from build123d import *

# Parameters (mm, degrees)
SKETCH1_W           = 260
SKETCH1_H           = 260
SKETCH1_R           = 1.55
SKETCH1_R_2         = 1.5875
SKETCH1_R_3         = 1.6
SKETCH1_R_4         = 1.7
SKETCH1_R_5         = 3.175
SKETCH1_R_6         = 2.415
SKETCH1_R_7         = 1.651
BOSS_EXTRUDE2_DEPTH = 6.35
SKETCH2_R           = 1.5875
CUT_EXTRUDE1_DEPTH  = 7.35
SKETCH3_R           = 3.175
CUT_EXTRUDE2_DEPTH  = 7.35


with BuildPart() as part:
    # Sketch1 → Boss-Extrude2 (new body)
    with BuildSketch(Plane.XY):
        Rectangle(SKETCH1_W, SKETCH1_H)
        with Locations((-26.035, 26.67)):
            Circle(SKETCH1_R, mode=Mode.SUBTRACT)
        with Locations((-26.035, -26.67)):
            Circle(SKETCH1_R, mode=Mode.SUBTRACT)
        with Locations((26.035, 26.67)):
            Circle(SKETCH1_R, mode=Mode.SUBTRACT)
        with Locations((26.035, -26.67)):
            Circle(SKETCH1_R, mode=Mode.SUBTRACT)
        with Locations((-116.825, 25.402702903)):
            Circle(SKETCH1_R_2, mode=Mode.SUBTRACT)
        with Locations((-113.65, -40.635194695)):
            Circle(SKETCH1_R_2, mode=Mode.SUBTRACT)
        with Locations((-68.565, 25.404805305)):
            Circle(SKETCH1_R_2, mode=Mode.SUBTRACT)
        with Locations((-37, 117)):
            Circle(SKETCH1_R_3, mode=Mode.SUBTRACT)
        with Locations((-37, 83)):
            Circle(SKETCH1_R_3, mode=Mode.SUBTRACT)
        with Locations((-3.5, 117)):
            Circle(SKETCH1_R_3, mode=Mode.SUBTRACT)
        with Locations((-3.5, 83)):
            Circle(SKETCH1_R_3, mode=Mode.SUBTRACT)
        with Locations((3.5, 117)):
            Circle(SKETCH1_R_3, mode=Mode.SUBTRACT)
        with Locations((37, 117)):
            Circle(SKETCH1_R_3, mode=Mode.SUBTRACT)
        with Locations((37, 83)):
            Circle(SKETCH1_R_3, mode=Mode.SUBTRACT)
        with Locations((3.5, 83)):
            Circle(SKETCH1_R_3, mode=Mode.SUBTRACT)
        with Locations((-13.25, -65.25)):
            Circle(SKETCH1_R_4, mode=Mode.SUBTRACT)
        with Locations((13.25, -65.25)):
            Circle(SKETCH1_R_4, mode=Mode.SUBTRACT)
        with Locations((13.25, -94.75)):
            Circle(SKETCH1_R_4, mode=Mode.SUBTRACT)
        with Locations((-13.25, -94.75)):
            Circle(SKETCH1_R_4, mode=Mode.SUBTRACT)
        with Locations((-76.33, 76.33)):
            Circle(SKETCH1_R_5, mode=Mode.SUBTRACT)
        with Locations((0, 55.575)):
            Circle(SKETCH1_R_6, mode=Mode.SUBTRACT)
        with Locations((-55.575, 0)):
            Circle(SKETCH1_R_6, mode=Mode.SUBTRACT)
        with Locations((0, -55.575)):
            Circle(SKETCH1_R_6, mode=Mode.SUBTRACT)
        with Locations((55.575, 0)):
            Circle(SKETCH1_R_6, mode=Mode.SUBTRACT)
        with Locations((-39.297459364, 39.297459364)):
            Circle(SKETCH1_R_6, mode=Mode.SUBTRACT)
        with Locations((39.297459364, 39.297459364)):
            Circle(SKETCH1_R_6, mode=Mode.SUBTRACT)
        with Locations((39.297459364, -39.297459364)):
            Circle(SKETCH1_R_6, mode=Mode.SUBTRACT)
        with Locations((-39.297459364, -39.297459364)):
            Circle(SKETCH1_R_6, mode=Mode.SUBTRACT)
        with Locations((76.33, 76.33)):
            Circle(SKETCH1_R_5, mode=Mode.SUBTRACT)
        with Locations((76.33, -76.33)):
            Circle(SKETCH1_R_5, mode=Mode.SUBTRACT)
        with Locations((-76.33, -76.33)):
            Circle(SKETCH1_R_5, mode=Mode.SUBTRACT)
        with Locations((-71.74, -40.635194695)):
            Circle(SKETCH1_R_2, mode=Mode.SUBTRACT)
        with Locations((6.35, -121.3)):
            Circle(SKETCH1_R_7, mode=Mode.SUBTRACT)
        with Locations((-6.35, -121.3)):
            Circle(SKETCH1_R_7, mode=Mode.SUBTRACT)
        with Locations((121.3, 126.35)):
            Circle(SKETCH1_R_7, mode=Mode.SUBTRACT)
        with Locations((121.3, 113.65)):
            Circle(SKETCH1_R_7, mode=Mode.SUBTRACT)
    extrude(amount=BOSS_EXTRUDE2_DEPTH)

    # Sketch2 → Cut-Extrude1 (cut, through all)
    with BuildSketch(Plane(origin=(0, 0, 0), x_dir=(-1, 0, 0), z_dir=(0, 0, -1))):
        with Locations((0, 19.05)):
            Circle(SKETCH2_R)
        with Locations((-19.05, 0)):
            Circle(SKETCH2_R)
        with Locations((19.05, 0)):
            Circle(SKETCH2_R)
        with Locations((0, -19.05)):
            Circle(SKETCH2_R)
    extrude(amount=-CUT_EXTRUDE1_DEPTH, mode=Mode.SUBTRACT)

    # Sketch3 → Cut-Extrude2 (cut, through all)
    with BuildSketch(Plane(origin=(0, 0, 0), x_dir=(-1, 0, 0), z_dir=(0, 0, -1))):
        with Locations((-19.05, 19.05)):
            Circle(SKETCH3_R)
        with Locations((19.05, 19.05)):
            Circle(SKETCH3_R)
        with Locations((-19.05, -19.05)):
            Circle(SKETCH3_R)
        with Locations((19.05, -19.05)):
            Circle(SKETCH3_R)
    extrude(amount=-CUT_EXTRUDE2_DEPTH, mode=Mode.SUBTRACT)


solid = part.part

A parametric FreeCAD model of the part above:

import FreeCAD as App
import Part
import Sketcher

V = App.Vector
Q = App.Units.Quantity

doc = App.newDocument("Part")
body = doc.addObject("PartDesign::Body", "Body")

# Sketch on XY plane
sketch1 = body.newObject("Sketcher::SketchObject", "Sketch")
sketch1.AttachmentSupport = (doc.getObject("XY_Plane"), [""])
sketch1.MapMode = "FlatFace"
sketch1.addGeometry([
    Part.LineSegment(V(-130, 130, 0), V(-130, -130, 0)),  # 0
    Part.LineSegment(V(-130, -130, 0), V(130, -130, 0)),  # 1
    Part.LineSegment(V(130, -130, 0), V(130, 130, 0)),  # 2
    Part.LineSegment(V(130, 130, 0), V(-130, 130, 0)),  # 3
    Part.Circle(V(-76.33, -76.33, 0), V(0, 0, 1), 3.175),  # 4
    Part.Circle(V(-6.35, -121.3, 0), V(0, 0, 1), 1.651),  # 5
    Part.Circle(V(-13.25, -94.75, 0), V(0, 0, 1), 1.7),  # 6
    Part.Circle(V(-13.25, -65.25, 0), V(0, 0, 1), 1.7),  # 7
    Part.Circle(V(-113.65, -40.635195, 0), V(0, 0, 1), 1.5875),  # 8
    Part.Circle(V(-71.74, -40.635195, 0), V(0, 0, 1), 1.5875),  # 9
    Part.Circle(V(-39.297459, -39.297459, 0), V(0, 0, 1), 2.415),  # 10
    Part.Circle(V(0, -55.575, 0), V(0, 0, 1), 2.415),  # 11
    Part.Circle(V(-55.575, 0, 0), V(0, 0, 1), 2.415),  # 12
    Part.Circle(V(-26.035, -26.67, 0), V(0, 0, 1), 1.55),  # 13
    Part.Circle(V(6.35, -121.3, 0), V(0, 0, 1), 1.651),  # 14
    Part.Circle(V(13.25, -94.75, 0), V(0, 0, 1), 1.7),  # 15
    Part.Circle(V(13.25, -65.25, 0), V(0, 0, 1), 1.7),  # 16
    Part.Circle(V(76.33, -76.33, 0), V(0, 0, 1), 3.175),  # 17
    Part.Circle(V(39.297459, -39.297459, 0), V(0, 0, 1), 2.415),  # 18
    Part.Circle(V(26.035, -26.67, 0), V(0, 0, 1), 1.55),  # 19
    Part.Circle(V(55.575, 0, 0), V(0, 0, 1), 2.415),  # 20
    Part.Circle(V(-116.825, 25.402703, 0), V(0, 0, 1), 1.5875),  # 21
    Part.Circle(V(-68.565, 25.404805, 0), V(0, 0, 1), 1.5875),  # 22
    Part.Circle(V(-26.035, 26.67, 0), V(0, 0, 1), 1.55),  # 23
    Part.Circle(V(-39.297459, 39.297459, 0), V(0, 0, 1), 2.415),  # 24
    Part.Circle(V(0, 55.575, 0), V(0, 0, 1), 2.415),  # 25
    Part.Circle(V(-76.33, 76.33, 0), V(0, 0, 1), 3.175),  # 26
    Part.Circle(V(-37, 83, 0), V(0, 0, 1), 1.6),  # 27
    Part.Circle(V(-3.5, 83, 0), V(0, 0, 1), 1.6),  # 28
    Part.Circle(V(-37, 117, 0), V(0, 0, 1), 1.6),  # 29
    Part.Circle(V(-3.5, 117, 0), V(0, 0, 1), 1.6),  # 30
    Part.Circle(V(26.035, 26.67, 0), V(0, 0, 1), 1.55),  # 31
    Part.Circle(V(39.297459, 39.297459, 0), V(0, 0, 1), 2.415),  # 32
    Part.Circle(V(3.5, 83, 0), V(0, 0, 1), 1.6),  # 33
    Part.Circle(V(37, 83, 0), V(0, 0, 1), 1.6),  # 34
    Part.Circle(V(3.5, 117, 0), V(0, 0, 1), 1.6),  # 35
    Part.Circle(V(37, 117, 0), V(0, 0, 1), 1.6),  # 36
    Part.Circle(V(76.33, 76.33, 0), V(0, 0, 1), 3.175),  # 37
    Part.Circle(V(121.3, 113.65, 0), V(0, 0, 1), 1.651),  # 38
    Part.Circle(V(121.3, 126.35, 0), V(0, 0, 1), 1.651),  # 39
], False)
sketch1.addConstraint([
    Sketcher.Constraint("Coincident", 0, 2, 1, 1),
    Sketcher.Constraint("Coincident", 1, 2, 2, 1),
    Sketcher.Constraint("Coincident", 2, 2, 3, 1),
    Sketcher.Constraint("Coincident", 3, 2, 0, 1),
    Sketcher.Constraint("Vertical", 0),
    Sketcher.Constraint("Horizontal", 1),
    Sketcher.Constraint("Vertical", 2),
    Sketcher.Constraint("Horizontal", 3),
    Sketcher.Constraint("Equal", 6, 7),
    Sketcher.Constraint("Equal", 8, 9),
    Sketcher.Constraint("Equal", 10, 11),
    Sketcher.Constraint("Equal", 11, 12),
    Sketcher.Constraint("Equal", 5, 14),
    Sketcher.Constraint("Equal", 7, 15),
    Sketcher.Constraint("Equal", 15, 16),
    Sketcher.Constraint("Equal", 4, 17),
    Sketcher.Constraint("Equal", 12, 18),
    Sketcher.Constraint("Equal", 13, 19),
    Sketcher.Constraint("Equal", 18, 20),
    Sketcher.Constraint("Equal", 9, 21),
    Sketcher.Constraint("Equal", 21, 22),
    Sketcher.Constraint("Equal", 19, 23),
    Sketcher.Constraint("Equal", 20, 24),
    Sketcher.Constraint("Equal", 24, 25),
    Sketcher.Constraint("Equal", 17, 26),
    Sketcher.Constraint("Equal", 27, 28),
    Sketcher.Constraint("Equal", 28, 29),
    Sketcher.Constraint("Equal", 29, 30),
    Sketcher.Constraint("Equal", 23, 31),
    Sketcher.Constraint("Equal", 25, 32),
    Sketcher.Constraint("Equal", 30, 33),
    Sketcher.Constraint("Equal", 33, 34),
    Sketcher.Constraint("Equal", 34, 35),
    Sketcher.Constraint("Equal", 35, 36),
    Sketcher.Constraint("Equal", 26, 37),
    Sketcher.Constraint("Equal", 14, 38),
    Sketcher.Constraint("Equal", 38, 39),
    Sketcher.Constraint("Symmetric", 12, 3, 20, 3, -1, 1),
    Sketcher.Constraint("Symmetric", 19, 3, 23, 3, -1, 1),
    Sketcher.Constraint("Symmetric", 18, 3, 24, 3, -1, 1),
    Sketcher.Constraint("Symmetric", 11, 3, 25, 3, -1, 1),
    Sketcher.Constraint("Symmetric", 17, 3, 26, 3, -1, 1),
    Sketcher.Constraint("Symmetric", 13, 3, 31, 3, -1, 1),
    Sketcher.Constraint("Symmetric", 10, 3, 32, 3, -1, 1),
    Sketcher.Constraint("Symmetric", 4, 3, 37, 3, -1, 1),
    Sketcher.Constraint("Symmetric", 0, 2, 2, 2, -1, 1),
    Sketcher.Constraint("Symmetric", 5, 3, 14, 3, -2),
    Sketcher.Constraint("Symmetric", 6, 3, 15, 3, -2),
    Sketcher.Constraint("Symmetric", 7, 3, 16, 3, -2),
    Sketcher.Constraint("Symmetric", 4, 3, 17, 3, -2),
    Sketcher.Constraint("Symmetric", 10, 3, 18, 3, -2),
    Sketcher.Constraint("Symmetric", 13, 3, 19, 3, -2),
    Sketcher.Constraint("Symmetric", 28, 3, 33, 3, -2),
    Sketcher.Constraint("Symmetric", 27, 3, 34, 3, -2),
    Sketcher.Constraint("Symmetric", 30, 3, 35, 3, -2),
    Sketcher.Constraint("Symmetric", 29, 3, 36, 3, -2),
    Sketcher.Constraint("PointOnObject", 11, 3, -2),
    Sketcher.Constraint("PointOnObject", 12, 3, -1),
    Sketcher.Constraint("Horizontal", 8, 3, 9, 3),
    Sketcher.Constraint("Horizontal", 27, 3, 28, 3),
    Sketcher.Constraint("Horizontal", 29, 3, 30, 3),
    Sketcher.Constraint("Vertical", 6, 3, 7, 3),
    Sketcher.Constraint("Vertical", 27, 3, 29, 3),
    Sketcher.Constraint("Vertical", 28, 3, 30, 3),
    Sketcher.Constraint("Vertical", 38, 3, 39, 3),
    Sketcher.Constraint("Equal", 3, 0),
    Sketcher.Constraint("Diameter", 6, Q("3.4 mm")),
    Sketcher.Constraint("Diameter", 13, Q("3.1 mm")),
    Sketcher.Constraint("Diameter", 27, Q("3.2 mm")),
    Sketcher.Constraint("Diameter", 4, Q("6.35 mm")),
    Sketcher.Constraint("Diameter", 10, Q("4.83 mm")),
    Sketcher.Constraint("DistanceX", 1, 1, 1, 2, Q("260 mm")),
    Sketcher.Constraint("Diameter", 5, Q("3.302 mm")),
    Sketcher.Constraint("Diameter", 8, Q("3.175 mm")),
    Sketcher.Constraint("DistanceX", 27, 3, -1, 1, Q("37 mm")),
    Sketcher.Constraint("DistanceY", -1, 1, 27, 3, Q("83 mm")),
    Sketcher.Constraint("DistanceY", -1, 1, 29, 3, Q("117 mm")),
    Sketcher.Constraint("DistanceX", 28, 3, 33, 3, Q("7 mm")),
    Sketcher.Constraint("DistanceY", 5, 3, -1, 1, Q("121.3 mm")),
    Sketcher.Constraint("DistanceX", -1, 1, 38, 3, Q("121.3 mm")),
    Sketcher.Constraint("DistanceX", 6, 3, 5, 3, Q("6.9 mm")),
    Sketcher.Constraint("DistanceY", 6, 3, 7, 3, Q("29.5 mm")),
    Sketcher.Constraint("DistanceX", 8, 3, 7, 3, Q("100.4 mm")),
    Sketcher.Constraint("DistanceX", 5, 3, 14, 3, Q("12.7 mm")),
    Sketcher.Constraint("DistanceY", 38, 3, 39, 3, Q("12.7 mm")),
    Sketcher.Constraint("DistanceX", 4, 3, -1, 1, Q("76.33 mm")),
    Sketcher.Constraint("DistanceY", 4, 3, -1, 1, Q("76.33 mm")),
    Sketcher.Constraint("DistanceY", 6, 3, -1, 1, Q("94.75 mm")),
    Sketcher.Constraint("DistanceX", 9, 3, -1, 1, Q("71.74 mm")),
    Sketcher.Constraint("DistanceY", 13, 3, -1, 1, Q("26.67 mm")),
    Sketcher.Constraint("DistanceY", -1, 1, 38, 3, Q("113.65 mm")),
    Sketcher.Constraint("DistanceX", 12, 3, 13, 3, Q("29.54 mm")),
    Sketcher.Constraint("DistanceX", 13, 3, 19, 3, Q("52.07 mm")),
    Sketcher.Constraint("DistanceX", 21, 3, 12, 3, Q("61.25 mm")),
    Sketcher.Constraint("DistanceX", 22, 3, 12, 3, Q("12.99 mm")),
    Sketcher.Constraint("DistanceY", 9, 3, 22, 3, Q("66.04 mm")),
    Sketcher.Constraint("DistanceY", 11, 3, -1, 1, Q("55.575 mm")),
    Sketcher.Constraint("DistanceX", 10, 3, -1, 1, Q("39.297459 mm")),
    Sketcher.Constraint("DistanceY", 10, 3, -1, 1, Q("39.297459 mm")),
    Sketcher.Constraint("DistanceY", 8, 3, -1, 1, Q("40.635195 mm")),
    Sketcher.Constraint("DistanceY", -1, 1, 21, 3, Q("25.402703 mm")),
])
pad1 = body.newObject("PartDesign::Pad", "Pad")
pad1.Profile = sketch1
pad1.Length = 6.35

# Sketch on XY plane
sketch2 = body.newObject("Sketcher::SketchObject", "Sketch001")
sketch2.AttachmentSupport = (doc.getObject("XY_Plane"), [""])
sketch2.MapMode = "FlatFace"
sketch2.addGeometry([
    Part.Circle(V(0, 19.05, 0), V(0, 0, 1), 1.5875),
    Part.Circle(V(19.05, 0, 0), V(0, 0, 1), 1.5875),
    Part.Circle(V(-19.05, 0, 0), V(0, 0, 1), 1.5875),
    Part.Circle(V(0, -19.05, 0), V(0, 0, 1), 1.5875),
], False)
sketch2.addConstraint([
    Sketcher.Constraint("Equal", 0, 1),
    Sketcher.Constraint("Equal", 1, 2),
    Sketcher.Constraint("Equal", 2, 3),
    Sketcher.Constraint("Symmetric", 1, 3, 2, 3, -1, 1),
    Sketcher.Constraint("Symmetric", 0, 3, 3, 3, -1, 1),
    Sketcher.Constraint("PointOnObject", 0, 3, -2),
    Sketcher.Constraint("PointOnObject", 1, 3, -1),
    Sketcher.Constraint("Diameter", 0, Q("3.175 mm")),
    Sketcher.Constraint("DistanceX", 2, 3, 1, 3, Q("38.1 mm")),
    Sketcher.Constraint("DistanceY", 3, 3, 0, 3, Q("38.1 mm")),
])
pocket1 = body.newObject("PartDesign::Pocket", "Pocket")
pocket1.Profile = sketch2
pocket1.Type = "ThroughAll"
pocket1.Reversed = True

# Sketch on XY plane
sketch3 = body.newObject("Sketcher::SketchObject", "Sketch002")
sketch3.AttachmentSupport = (doc.getObject("XY_Plane"), [""])
sketch3.MapMode = "FlatFace"
sketch3.addGeometry([
    Part.Circle(V(19.05, 19.05, 0), V(0, 0, 1), 3.175),
    Part.Circle(V(-19.05, 19.05, 0), V(0, 0, 1), 3.175),
    Part.Circle(V(19.05, -19.05, 0), V(0, 0, 1), 3.175),
    Part.Circle(V(-19.05, -19.05, 0), V(0, 0, 1), 3.175),
], False)
sketch3.addConstraint([
    Sketcher.Constraint("Equal", 0, 1),
    Sketcher.Constraint("Equal", 1, 2),
    Sketcher.Constraint("Equal", 2, 3),
    Sketcher.Constraint("Symmetric", 1, 3, 2, 3, -1, 1),
    Sketcher.Constraint("Symmetric", 0, 3, 3, 3, -1, 1),
    Sketcher.Constraint("Symmetric", 0, 3, 1, 3, -2),
    Sketcher.Constraint("Diameter", 0, Q("6.35 mm")),
    Sketcher.Constraint("DistanceX", 1, 3, 0, 3, Q("38.1 mm")),
    Sketcher.Constraint("DistanceY", 2, 3, 0, 3, Q("38.1 mm")),
])
pocket2 = body.newObject("PartDesign::Pocket", "Pocket001")
pocket2.Profile = sketch3
pocket2.Type = "ThroughAll"
pocket2.Reversed = True

doc.recompute()
